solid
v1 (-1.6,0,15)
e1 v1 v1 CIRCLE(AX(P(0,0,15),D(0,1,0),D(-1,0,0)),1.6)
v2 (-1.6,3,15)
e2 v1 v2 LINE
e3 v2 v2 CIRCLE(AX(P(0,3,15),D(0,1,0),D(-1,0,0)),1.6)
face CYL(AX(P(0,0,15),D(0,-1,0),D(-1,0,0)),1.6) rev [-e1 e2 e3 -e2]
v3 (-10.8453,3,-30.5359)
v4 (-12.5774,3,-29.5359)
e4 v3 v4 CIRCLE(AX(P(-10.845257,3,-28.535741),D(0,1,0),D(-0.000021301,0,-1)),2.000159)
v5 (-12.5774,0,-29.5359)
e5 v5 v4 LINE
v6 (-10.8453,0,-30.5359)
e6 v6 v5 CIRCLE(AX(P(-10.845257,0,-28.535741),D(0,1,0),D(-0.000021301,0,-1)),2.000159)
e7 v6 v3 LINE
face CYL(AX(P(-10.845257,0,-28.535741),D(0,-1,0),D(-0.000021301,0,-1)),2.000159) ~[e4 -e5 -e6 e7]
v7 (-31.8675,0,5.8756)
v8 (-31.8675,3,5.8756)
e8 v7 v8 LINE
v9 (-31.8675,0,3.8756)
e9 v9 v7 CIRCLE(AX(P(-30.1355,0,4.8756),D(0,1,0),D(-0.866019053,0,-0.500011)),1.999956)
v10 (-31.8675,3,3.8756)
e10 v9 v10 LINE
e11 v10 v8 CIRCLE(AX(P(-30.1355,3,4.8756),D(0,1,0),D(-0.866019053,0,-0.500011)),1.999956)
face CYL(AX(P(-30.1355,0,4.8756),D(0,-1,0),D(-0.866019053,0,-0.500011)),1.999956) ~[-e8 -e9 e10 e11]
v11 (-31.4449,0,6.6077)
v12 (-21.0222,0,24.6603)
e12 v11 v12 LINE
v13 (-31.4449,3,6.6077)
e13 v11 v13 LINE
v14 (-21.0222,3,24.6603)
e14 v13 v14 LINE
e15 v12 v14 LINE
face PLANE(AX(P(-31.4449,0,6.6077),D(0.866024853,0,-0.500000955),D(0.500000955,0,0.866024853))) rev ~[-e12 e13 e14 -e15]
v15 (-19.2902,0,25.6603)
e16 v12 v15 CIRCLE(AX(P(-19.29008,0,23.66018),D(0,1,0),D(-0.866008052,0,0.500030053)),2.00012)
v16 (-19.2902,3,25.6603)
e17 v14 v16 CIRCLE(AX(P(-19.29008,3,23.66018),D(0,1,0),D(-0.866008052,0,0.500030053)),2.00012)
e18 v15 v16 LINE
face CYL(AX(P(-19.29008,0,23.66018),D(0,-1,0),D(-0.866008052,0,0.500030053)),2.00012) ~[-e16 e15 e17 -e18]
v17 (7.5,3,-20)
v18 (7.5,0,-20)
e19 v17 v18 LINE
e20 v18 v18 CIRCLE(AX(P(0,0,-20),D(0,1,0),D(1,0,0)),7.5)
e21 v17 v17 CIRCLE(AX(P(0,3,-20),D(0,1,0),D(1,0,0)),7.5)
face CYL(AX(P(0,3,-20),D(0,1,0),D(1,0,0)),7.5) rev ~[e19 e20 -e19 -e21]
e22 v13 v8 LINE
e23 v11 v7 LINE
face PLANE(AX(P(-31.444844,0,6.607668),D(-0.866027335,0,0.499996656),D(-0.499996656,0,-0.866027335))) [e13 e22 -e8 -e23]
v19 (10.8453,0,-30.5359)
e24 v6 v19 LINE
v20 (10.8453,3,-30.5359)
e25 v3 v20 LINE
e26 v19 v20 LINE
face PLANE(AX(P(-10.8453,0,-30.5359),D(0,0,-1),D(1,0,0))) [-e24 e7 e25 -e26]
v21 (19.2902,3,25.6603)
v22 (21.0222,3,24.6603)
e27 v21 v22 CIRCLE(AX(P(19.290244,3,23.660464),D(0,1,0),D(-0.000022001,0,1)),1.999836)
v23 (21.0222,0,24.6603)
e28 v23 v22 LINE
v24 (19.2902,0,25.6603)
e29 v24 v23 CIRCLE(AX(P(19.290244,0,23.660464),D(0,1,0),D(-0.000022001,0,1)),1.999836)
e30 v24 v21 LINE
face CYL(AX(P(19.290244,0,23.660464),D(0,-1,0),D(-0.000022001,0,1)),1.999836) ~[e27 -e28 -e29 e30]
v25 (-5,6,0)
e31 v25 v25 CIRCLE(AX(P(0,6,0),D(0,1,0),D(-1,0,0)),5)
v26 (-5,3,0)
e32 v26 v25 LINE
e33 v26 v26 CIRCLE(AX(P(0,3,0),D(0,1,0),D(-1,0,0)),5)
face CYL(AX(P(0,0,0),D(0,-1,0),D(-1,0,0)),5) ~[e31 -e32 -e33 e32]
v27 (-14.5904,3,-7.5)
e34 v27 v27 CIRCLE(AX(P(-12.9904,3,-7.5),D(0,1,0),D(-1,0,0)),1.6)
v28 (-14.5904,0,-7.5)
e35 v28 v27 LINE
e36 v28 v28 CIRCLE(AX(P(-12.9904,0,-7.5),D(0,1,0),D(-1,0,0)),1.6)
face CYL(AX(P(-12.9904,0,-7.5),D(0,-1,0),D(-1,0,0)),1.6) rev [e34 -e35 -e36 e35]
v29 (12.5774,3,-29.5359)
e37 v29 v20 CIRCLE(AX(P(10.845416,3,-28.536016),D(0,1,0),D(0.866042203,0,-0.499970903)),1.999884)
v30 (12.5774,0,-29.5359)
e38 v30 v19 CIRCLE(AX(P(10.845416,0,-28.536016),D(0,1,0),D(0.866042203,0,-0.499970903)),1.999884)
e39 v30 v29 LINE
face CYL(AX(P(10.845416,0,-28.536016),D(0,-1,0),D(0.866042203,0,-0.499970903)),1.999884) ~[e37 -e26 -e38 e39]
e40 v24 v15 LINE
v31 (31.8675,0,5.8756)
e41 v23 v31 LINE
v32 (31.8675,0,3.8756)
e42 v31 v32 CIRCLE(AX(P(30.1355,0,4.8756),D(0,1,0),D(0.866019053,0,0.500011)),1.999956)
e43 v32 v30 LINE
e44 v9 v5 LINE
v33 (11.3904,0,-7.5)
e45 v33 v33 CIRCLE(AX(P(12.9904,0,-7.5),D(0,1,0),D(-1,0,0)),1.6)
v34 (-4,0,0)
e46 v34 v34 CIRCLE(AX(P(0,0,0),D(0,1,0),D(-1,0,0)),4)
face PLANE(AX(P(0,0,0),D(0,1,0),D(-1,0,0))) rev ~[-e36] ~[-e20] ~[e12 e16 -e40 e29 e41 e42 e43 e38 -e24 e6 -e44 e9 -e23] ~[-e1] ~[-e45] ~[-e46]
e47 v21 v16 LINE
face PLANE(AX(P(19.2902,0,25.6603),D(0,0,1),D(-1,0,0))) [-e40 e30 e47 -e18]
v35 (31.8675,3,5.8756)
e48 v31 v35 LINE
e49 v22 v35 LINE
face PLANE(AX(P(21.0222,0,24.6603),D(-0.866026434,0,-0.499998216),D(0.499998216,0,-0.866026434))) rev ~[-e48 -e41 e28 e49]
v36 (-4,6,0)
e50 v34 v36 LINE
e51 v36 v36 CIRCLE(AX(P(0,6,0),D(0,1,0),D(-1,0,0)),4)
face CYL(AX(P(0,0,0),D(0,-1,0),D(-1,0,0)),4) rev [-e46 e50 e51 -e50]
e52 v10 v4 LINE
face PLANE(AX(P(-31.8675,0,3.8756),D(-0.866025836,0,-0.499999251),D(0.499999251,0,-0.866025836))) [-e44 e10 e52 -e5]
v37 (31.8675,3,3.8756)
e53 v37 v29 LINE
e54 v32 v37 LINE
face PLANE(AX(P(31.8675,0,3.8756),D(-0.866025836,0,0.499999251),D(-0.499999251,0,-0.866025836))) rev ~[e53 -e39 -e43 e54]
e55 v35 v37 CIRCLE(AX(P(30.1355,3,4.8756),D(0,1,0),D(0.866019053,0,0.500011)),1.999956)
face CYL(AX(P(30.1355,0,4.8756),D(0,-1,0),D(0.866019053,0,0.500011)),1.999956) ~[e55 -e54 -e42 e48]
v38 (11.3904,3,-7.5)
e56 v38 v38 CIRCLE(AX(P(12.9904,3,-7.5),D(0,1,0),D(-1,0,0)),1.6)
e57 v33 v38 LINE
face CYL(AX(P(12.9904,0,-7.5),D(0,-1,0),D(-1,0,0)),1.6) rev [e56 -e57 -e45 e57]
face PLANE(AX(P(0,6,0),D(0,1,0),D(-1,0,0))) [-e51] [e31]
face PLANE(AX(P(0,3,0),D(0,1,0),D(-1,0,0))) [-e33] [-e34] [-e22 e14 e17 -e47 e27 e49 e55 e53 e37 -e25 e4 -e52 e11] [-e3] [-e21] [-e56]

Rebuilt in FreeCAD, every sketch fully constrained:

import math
import FreeCAD as App
import Part
import Sketcher
from FreeCAD import Vector
Q = App.Units.Quantity

doc = App.newDocument("Part")
params = doc.addObject("Spreadsheet::Sheet", "Params")
for row, (alias, value) in enumerate([
    ("sketch1_diameter", "10 mm"),
    ("sketch1_radius", "2 mm"),
    ("sketch1_diameter2", "3.2 mm"),
    ("pad1_length", "3 mm"),
    ("sketch2_diameter", "10 mm"),
    ("sketch2_diameter2", "8 mm"),
    ("pad2_length", "6 mm"),
    ("sketch3_diameter", "15 mm"),
    ("pocket1_length", "6 mm"),
], start=1):
    params.set(f"A{row}", alias)
    params.set(f"B{row}", "=" + value)
    params.setAlias(f"B{row}", alias)

body = doc.addObject("PartDesign::Body", "Body")

# Sketch on XZ plane
sketch1 = body.newObject("Sketcher::SketchObject", "Sketch")
sketch1.AttachmentSupport = (doc.getObject("XZ_Plane"), [""])
sketch1.MapMode = "FlatFace"
sketch1.addGeometry([
    Part.LineSegment(Vector(-31.9, 5.9, 0), Vector(-31.4, 6.6, 0)),  # 0
    Part.LineSegment(Vector(-31.4, 6.6, 0), Vector(-21, 24.7, 0)),  # 1
    Part.ArcOfCircle(Part.Circle(Vector(-19.3, 23.7, 0), Vector(0, 0, 1), 2), math.radians(90), math.radians(150)),  # 2
    Part.LineSegment(Vector(-19.3, 25.7, 0), Vector(19.3, 25.7, 0)),  # 3
    Part.ArcOfCircle(Part.Circle(Vector(19.3, 23.7, 0), Vector(0, 0, 1), 2), math.radians(30), math.radians(90)),  # 4
    Part.LineSegment(Vector(21, 24.7, 0), Vector(31.9, 5.9, 0)),  # 5
    Part.ArcOfCircle(Part.Circle(Vector(30.1, 4.9, 0), Vector(0, 0, 1), 2), math.radians(-30), math.radians(30)),  # 6
    Part.LineSegment(Vector(31.9, 3.9, 0), Vector(12.6, -29.5, 0)),  # 7
    Part.ArcOfCircle(Part.Circle(Vector(10.8, -28.5, 0), Vector(0, 0, 1), 2), math.radians(-90), math.radians(-30)),  # 8
    Part.LineSegment(Vector(10.8, -30.5, 0), Vector(-10.8, -30.5, 0)),  # 9
    Part.ArcOfCircle(Part.Circle(Vector(-10.8, -28.5, 0), Vector(0, 0, 1), 2), math.radians(-150), math.radians(-90)),  # 10
    Part.LineSegment(Vector(-12.6, -29.5, 0), Vector(-31.9, 3.9, 0)),  # 11
    Part.ArcOfCircle(Part.Circle(Vector(-30.1, 4.9, 0), Vector(0, 0, 1), 2), math.radians(150), math.radians(210)),  # 12
    Part.Circle(Vector(13, -7.5, 0), Vector(0, 0, 1), 1.6),  # 13
    Part.Circle(Vector(-13, -7.5, 0), Vector(0, 0, 1), 1.6),  # 14
    Part.Circle(Vector(0, 0, 0), Vector(0, 0, 1), 5),  # 15
    Part.Circle(Vector(0, 15, 0), Vector(0, 0, 1), 1.6),  # 16
], False)
sketch1.addConstraint([
    Sketcher.Constraint("Coincident", 0, 2, 1, 1),
    Sketcher.Constraint("Tangent", 1, 2, 2, 2),
    Sketcher.Constraint("Tangent", 2, 1, 3, 1),
    Sketcher.Constraint("Tangent", 3, 2, 4, 2),
    Sketcher.Constraint("Tangent", 4, 1, 5, 1),
    Sketcher.Constraint("Tangent", 5, 2, 6, 2),
    Sketcher.Constraint("Tangent", 6, 1, 7, 1),
    Sketcher.Constraint("Tangent", 7, 2, 8, 2),
    Sketcher.Constraint("Tangent", 8, 1, 9, 1),
    Sketcher.Constraint("Tangent", 9, 2, 10, 2),
    Sketcher.Constraint("Tangent", 10, 1, 11, 1),
    Sketcher.Constraint("Tangent", 11, 2, 12, 2),
    Sketcher.Constraint("Tangent", 12, 1, 0, 1),
    Sketcher.Constraint("Horizontal", 3),
    Sketcher.Constraint("Horizontal", 9),
    Sketcher.Constraint("Coincident", 15, 3, -1, 1),
    Sketcher.Constraint("Equal", 2, 4),
    Sketcher.Constraint("Equal", 4, 6),
    Sketcher.Constraint("Equal", 6, 8),
    Sketcher.Constraint("Equal", 8, 10),
    Sketcher.Constraint("Equal", 10, 12),
    Sketcher.Constraint("Equal", 13, 14),
    Sketcher.Constraint("Equal", 14, 16),
    Sketcher.Constraint("Symmetric", 6, 3, 12, 3, -2),
    Sketcher.Constraint("Symmetric", 13, 3, 14, 3, -2),
    Sketcher.Constraint("Symmetric", 1, 2, 4, 1, -2),
    Sketcher.Constraint("PointOnObject", 16, 3, -2),
    Sketcher.Constraint("Parallel", 1, 7),
    Sketcher.Constraint("Parallel", 5, 11),
    Sketcher.Constraint("Diameter", 15, Q("10 mm")),
    Sketcher.Constraint("Radius", 2, Q("2 mm")),
    Sketcher.Constraint("DistanceY", 6, 1, 5, 2, Q("2 mm")),
    Sketcher.Constraint("Diameter", 13, Q("3.2 mm")),
    Sketcher.Constraint("DistanceY", -1, 1, 16, 3, Q("15 mm")),
    Sketcher.Constraint("DistanceY", 13, 3, -1, 1, Q("7.5 mm")),
    Sketcher.Constraint("DistanceX", 3, 1, 3, 2, Q("38.5804 mm")),
    Sketcher.Constraint("DistanceX", 9, 2, 9, 1, Q("21.6906 mm")),
    Sketcher.Constraint("DistanceY", 8, 3, -1, 1, Q("28.536 mm")),
    Sketcher.Constraint("DistanceX", 12, 3, 6, 3, Q("60.271 mm")),
    Sketcher.Constraint("DistanceX", 13, 3, 6, 3, Q("17.145 mm")),
    Sketcher.Constraint("DistanceY", 12, 3, 0, 2, Q("1.732 mm")),
])
sketch1.setExpression("Constraints[29]", "Params.sketch1_diameter")
sketch1.setExpression("Constraints[30]", "Params.sketch1_radius")
sketch1.setExpression("Constraints[32]", "Params.sketch1_diameter2")
pad1 = body.newObject("PartDesign::Pad", "Pad")
pad1.Profile = sketch1
pad1.setExpression("Length", "Params.pad1_length")
pad1.Reversed = True

# Sketch on XZ plane
sketch2 = body.newObject("Sketcher::SketchObject", "Sketch001")
sketch2.AttachmentSupport = (doc.getObject("XZ_Plane"), [""])
sketch2.MapMode = "FlatFace"
sketch2.addGeometry([
    Part.Circle(Vector(0, 0, 0), Vector(0, 0, 1), 5),
    Part.Circle(Vector(0, 0, 0), Vector(0, 0, 1), 4),
], False)
sketch2.addConstraint([
    Sketcher.Constraint("Coincident", 0, 3, -1, 1),
    Sketcher.Constraint("Coincident", 1, 3, -1, 1),
    Sketcher.Constraint("Diameter", 0, Q("10 mm")),
    Sketcher.Constraint("Diameter", 1, Q("8 mm")),
])
sketch2.setExpression("Constraints[2]", "Params.sketch2_diameter")
sketch2.setExpression("Constraints[3]", "Params.sketch2_diameter2")
pad2 = body.newObject("PartDesign::Pad", "Pad001")
pad2.Profile = sketch2
pad2.setExpression("Length", "Params.pad2_length")
pad2.Reversed = True

# Sketch on XZ plane
sketch3 = body.newObject("Sketcher::SketchObject", "Sketch002")
sketch3.AttachmentSupport = (doc.getObject("XZ_Plane"), [""])
sketch3.MapMode = "FlatFace"
sketch3.AttachmentOffset = App.Placement(Vector(0, 0, -3), App.Rotation())
sketch3.addGeometry(Part.Circle(Vector(0, -20, 0), Vector(0, 0, 1), 8), False)
sketch3.addConstraint([
    Sketcher.Constraint("PointOnObject", 0, 3, -2),
    Sketcher.Constraint("Diameter", 0, Q("15 mm")),
    Sketcher.Constraint("DistanceY", 0, 3, -1, 1, Q("20 mm")),
])
sketch3.setExpression("Constraints[1]", "Params.sketch3_diameter")
pocket1 = body.newObject("PartDesign::Pocket", "Pocket")
pocket1.Profile = sketch3
pocket1.setExpression("Length", "Params.pocket1_length")
pocket1.Reversed = True

doc.recompute()
